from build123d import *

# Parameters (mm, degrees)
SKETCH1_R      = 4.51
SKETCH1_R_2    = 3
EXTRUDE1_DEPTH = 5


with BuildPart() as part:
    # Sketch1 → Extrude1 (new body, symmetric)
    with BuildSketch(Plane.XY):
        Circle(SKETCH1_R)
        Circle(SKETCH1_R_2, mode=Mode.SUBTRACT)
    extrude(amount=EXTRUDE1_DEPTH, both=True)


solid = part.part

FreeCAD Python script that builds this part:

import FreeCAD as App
import Part
import Sketcher

doc = App.newDocument("Part")
body = doc.addObject("PartDesign::Body", "Body")

sketch1 = body.newObject("Sketcher::SketchObject", "Sketch")
sketch1.AttachmentSupport = (doc.getObject("XY_Plane"), [""])
sketch1.MapMode = "FlatFace"
sketch1.addGeometry([
    Part.Circle(App.Vector(0, 0, 0), App.Vector(0, 0, 1), 4.51),
    Part.Circle(App.Vector(0, 0, 0), App.Vector(0, 0, 1), 3),
], False)
sketch1.addConstraint([
    Sketcher.Constraint("Coincident", 0, 3, -1, 1),
    Sketcher.Constraint("Coincident", 1, 3, -1, 1),
    Sketcher.Constraint("Diameter", 1, 6.0),
    Sketcher.Constraint("Diameter", 0, 9.02),
])
pad1 = body.newObject("PartDesign::Pad", "Pad")
pad1.Profile = sketch1
pad1.Length = 10
pad1.Midplane = True

doc.recompute()
